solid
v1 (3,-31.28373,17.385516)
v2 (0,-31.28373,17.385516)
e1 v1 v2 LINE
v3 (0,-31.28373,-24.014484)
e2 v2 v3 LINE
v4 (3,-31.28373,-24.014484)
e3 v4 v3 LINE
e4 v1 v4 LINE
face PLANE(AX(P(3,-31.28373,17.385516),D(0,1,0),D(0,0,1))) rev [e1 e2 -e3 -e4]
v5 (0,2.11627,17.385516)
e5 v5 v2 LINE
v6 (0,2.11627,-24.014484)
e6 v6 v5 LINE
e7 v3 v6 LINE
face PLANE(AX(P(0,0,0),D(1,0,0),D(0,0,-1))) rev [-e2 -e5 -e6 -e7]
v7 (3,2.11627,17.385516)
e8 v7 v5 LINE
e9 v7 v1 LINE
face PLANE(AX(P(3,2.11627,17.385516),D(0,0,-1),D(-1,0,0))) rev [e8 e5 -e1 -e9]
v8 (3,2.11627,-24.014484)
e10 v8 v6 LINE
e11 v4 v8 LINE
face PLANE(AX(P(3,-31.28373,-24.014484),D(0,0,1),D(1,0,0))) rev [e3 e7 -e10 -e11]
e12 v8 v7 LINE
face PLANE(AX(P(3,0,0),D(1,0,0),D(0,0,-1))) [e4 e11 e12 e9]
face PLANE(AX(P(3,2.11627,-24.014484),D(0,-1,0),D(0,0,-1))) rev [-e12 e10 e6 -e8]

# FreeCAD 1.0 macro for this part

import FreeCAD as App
import Part
import Sketcher

doc = App.newDocument("Part")
body = doc.addObject("PartDesign::Body", "Body")

sketch1 = doc.addObject("Sketcher::SketchObject", "Sketch")
body.addObject(sketch1)
sketch1.AttachmentSupport = (doc.YZ_Plane, [""])
sketch1.MapMode = "FlatFace"
sketch1.addGeometry([
    Part.LineSegment(App.Vector(2.11627, 17.385516, 0), App.Vector(-31.28373, 17.385516, 0)),
    Part.LineSegment(App.Vector(-31.28373, 17.385516, 0), App.Vector(-31.28373, -24.014484, 0)),
    Part.LineSegment(App.Vector(-31.28373, -24.014484, 0), App.Vector(2.11627, -24.014484, 0)),
    Part.LineSegment(App.Vector(2.11627, -24.014484, 0), App.Vector(2.11627, 17.385516, 0)),
], False)
sketch1.addConstraint([
    Sketcher.Constraint("Coincident", 0, 2, 1, 1),
    Sketcher.Constraint("Coincident", 1, 2, 2, 1),
    Sketcher.Constraint("Coincident", 2, 2, 3, 1),
    Sketcher.Constraint("Coincident", 3, 2, 0, 1),
    Sketcher.Constraint("Horizontal", 0),
    Sketcher.Constraint("Vertical", 1),
    Sketcher.Constraint("Horizontal", 2),
    Sketcher.Constraint("Vertical", 3),
    Sketcher.Constraint("DistanceX", 0, 2, 0, 1, 33.4),
    Sketcher.Constraint("DistanceY", 1, 2, 1, 1, 41.4),
    Sketcher.Constraint("DistanceX", 0, 2, -1, 1, 31.28373),
    Sketcher.Constraint("DistanceY", -1, 1, 0, 2, 17.385516),
])
pad1 = doc.addObject("PartDesign::Pad", "Pad")
body.addObject(pad1)
pad1.Profile = sketch1
pad1.Length = 3

doc.recompute()
